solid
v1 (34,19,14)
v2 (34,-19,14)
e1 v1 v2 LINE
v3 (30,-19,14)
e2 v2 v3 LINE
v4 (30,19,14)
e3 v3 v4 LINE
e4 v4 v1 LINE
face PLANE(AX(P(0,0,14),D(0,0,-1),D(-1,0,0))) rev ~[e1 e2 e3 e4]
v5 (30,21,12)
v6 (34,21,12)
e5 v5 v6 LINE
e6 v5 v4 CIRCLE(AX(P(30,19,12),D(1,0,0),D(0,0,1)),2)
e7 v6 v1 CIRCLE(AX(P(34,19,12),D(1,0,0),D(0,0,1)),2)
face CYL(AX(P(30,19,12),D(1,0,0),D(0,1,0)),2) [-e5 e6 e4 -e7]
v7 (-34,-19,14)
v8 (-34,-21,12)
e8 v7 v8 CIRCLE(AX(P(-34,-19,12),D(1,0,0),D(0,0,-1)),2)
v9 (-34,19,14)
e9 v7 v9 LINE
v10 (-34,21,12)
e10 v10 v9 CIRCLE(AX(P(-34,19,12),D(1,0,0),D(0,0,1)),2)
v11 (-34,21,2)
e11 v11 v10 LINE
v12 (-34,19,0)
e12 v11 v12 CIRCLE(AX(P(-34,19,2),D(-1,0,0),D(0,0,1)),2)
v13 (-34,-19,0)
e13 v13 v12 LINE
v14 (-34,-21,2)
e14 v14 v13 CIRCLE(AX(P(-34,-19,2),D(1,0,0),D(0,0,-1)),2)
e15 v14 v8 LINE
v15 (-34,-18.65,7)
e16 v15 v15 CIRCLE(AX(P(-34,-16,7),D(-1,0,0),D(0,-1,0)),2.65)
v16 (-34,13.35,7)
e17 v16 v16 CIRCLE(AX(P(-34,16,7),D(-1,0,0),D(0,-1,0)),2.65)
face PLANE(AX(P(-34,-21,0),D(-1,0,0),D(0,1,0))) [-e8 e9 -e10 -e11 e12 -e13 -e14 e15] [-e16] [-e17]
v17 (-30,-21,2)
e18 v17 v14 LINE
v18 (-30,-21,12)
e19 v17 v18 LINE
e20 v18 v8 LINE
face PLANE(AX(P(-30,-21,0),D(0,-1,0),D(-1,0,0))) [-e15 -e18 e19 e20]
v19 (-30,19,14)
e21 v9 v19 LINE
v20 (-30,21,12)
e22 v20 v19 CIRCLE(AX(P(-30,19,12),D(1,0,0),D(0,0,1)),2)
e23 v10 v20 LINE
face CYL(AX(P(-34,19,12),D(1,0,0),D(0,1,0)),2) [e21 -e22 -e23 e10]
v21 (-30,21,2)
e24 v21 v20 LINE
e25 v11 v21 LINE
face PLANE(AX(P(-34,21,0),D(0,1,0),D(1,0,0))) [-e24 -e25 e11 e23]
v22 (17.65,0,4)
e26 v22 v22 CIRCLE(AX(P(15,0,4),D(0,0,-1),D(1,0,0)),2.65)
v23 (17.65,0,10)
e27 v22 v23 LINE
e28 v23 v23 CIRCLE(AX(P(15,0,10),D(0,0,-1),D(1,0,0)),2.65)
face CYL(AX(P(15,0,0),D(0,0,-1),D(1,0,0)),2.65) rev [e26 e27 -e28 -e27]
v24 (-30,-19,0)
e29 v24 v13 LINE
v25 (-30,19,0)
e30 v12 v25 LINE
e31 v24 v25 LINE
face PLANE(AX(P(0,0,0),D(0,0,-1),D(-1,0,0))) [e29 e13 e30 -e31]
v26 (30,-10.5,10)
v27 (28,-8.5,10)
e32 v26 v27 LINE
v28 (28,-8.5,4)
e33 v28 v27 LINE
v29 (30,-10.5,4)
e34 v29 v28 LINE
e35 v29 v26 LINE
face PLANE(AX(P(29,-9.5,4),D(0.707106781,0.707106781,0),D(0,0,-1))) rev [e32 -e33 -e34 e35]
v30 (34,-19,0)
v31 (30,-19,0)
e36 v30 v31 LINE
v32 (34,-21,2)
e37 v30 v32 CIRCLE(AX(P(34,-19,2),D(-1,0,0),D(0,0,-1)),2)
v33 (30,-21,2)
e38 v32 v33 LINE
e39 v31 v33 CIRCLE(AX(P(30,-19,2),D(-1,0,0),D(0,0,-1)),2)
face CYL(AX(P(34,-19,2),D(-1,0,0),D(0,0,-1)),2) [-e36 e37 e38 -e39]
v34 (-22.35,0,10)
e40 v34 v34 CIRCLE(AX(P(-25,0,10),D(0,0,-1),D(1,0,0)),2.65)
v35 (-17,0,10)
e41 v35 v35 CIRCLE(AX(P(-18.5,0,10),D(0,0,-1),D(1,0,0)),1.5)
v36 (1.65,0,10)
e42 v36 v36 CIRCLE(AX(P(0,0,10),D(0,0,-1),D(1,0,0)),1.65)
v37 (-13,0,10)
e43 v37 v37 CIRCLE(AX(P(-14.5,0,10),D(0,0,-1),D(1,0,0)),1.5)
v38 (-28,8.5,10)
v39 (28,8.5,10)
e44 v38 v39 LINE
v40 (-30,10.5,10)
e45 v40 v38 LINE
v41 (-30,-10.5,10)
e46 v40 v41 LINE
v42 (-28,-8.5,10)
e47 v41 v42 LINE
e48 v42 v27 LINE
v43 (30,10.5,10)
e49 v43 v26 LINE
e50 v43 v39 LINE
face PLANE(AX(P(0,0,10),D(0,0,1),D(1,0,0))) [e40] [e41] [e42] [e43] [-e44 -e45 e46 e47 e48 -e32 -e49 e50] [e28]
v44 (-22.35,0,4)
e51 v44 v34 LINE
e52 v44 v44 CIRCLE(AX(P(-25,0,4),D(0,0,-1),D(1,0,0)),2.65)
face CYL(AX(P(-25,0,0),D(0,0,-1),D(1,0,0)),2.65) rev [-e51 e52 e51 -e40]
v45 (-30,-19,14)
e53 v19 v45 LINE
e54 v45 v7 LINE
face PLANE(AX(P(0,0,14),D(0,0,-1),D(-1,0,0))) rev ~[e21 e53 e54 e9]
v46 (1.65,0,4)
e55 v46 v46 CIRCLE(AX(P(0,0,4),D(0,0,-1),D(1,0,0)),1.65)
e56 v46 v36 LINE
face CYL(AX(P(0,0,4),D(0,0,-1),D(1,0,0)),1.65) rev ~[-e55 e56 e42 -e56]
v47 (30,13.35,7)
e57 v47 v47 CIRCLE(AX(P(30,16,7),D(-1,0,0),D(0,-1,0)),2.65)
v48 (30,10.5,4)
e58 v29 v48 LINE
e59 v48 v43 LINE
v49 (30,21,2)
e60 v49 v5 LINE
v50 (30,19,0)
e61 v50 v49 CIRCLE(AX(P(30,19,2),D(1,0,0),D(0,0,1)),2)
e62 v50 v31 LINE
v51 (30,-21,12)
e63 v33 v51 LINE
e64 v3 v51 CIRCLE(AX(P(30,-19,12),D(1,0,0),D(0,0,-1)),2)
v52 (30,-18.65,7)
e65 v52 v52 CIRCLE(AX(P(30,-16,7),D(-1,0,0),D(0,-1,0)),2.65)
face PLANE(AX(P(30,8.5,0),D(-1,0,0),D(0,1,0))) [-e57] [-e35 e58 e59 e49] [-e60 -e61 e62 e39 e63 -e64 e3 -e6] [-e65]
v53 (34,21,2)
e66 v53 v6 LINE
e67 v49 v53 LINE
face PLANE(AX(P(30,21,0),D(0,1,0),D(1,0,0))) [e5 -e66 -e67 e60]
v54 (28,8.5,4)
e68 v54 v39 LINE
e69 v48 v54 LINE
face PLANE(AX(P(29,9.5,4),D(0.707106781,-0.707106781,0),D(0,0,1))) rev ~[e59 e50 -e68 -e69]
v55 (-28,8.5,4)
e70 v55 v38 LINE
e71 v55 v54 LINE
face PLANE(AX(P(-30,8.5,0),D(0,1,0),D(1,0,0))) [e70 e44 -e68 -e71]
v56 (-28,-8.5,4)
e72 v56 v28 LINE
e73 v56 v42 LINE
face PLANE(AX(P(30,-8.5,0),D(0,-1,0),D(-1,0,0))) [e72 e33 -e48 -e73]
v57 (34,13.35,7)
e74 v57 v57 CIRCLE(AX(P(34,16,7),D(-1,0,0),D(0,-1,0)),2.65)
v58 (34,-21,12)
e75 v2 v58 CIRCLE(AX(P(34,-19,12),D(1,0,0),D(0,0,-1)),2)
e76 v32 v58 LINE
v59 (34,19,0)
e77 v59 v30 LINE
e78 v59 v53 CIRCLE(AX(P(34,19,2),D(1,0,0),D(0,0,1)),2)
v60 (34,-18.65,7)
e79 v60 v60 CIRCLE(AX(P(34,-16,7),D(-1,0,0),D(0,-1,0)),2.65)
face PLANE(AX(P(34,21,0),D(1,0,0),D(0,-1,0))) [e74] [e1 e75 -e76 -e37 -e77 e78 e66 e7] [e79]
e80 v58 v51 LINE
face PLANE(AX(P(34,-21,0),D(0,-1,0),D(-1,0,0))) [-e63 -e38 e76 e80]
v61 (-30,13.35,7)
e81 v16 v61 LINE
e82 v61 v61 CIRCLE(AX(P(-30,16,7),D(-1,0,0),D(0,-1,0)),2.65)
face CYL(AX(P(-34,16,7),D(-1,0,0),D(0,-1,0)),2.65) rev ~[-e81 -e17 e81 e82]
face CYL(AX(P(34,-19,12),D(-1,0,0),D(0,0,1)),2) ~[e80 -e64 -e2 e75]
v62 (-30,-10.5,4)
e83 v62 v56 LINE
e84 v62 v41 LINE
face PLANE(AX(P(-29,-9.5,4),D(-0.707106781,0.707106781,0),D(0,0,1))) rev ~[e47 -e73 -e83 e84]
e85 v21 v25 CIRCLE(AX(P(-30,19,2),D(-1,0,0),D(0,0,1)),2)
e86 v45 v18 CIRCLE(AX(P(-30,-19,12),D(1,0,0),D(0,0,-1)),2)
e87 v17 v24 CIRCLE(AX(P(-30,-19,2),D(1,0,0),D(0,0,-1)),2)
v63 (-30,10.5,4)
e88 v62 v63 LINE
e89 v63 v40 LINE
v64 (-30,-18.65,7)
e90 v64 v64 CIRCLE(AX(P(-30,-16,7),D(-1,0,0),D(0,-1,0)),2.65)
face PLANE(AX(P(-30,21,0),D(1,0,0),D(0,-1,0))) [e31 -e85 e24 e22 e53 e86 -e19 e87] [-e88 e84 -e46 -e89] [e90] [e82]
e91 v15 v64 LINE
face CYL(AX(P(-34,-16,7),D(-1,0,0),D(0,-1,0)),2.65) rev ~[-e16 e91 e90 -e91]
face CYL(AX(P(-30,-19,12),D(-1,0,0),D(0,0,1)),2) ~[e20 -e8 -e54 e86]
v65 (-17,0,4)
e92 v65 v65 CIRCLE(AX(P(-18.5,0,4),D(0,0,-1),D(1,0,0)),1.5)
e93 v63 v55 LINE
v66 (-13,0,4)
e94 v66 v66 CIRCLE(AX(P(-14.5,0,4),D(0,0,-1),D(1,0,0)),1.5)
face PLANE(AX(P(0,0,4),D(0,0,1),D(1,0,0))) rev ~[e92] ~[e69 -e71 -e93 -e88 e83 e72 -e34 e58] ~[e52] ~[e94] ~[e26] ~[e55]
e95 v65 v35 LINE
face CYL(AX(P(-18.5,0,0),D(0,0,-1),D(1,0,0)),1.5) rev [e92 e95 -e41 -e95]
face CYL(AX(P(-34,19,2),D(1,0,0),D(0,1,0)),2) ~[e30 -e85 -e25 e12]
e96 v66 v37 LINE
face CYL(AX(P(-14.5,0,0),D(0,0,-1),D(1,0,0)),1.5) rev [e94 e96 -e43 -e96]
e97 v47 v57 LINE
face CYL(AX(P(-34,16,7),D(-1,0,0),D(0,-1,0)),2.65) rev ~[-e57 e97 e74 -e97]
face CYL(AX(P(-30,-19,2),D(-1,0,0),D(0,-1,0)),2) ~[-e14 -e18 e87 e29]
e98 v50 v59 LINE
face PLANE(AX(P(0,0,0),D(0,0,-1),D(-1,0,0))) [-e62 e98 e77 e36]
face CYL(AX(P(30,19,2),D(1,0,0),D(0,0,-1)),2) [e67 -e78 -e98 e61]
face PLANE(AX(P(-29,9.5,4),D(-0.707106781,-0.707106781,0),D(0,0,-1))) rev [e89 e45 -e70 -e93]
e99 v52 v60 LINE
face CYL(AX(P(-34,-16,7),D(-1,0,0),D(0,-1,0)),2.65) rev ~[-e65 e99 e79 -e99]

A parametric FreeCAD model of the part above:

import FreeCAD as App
import Part
import Sketcher
Q = App.Units.Quantity


def edges_at(feature, points):
    """Names of the edges that pass closest to the given points."""
    edges = feature.Shape.Edges
    near = lambda p: min(range(len(edges)), key=lambda i: edges[i].distToShape(Part.Vertex(*p))[0])
    return sorted({f"Edge{near(p) + 1}" for p in points})

doc = App.newDocument("Part")
params = doc.addObject("Spreadsheet::Sheet", "Params")
for row, (alias, value) in enumerate([
    ("sketch1_diameter", "3 mm"),
    ("sketch1_diameter2", "5.3 mm"),
    ("sketch1_width", "4 mm"),
    ("sketch1_width2", "60 mm"),
    ("sketch1_height", "42 mm"),
    ("pad1_length", "14 mm"),
    ("sketch2_diameter", "5.3 mm"),
    ("sketch3_width", "60 mm"),
    ("sketch3_height", "17 mm"),
    ("pocket2_length", "4 mm"),
    ("sketch4_width", "60 mm"),
    ("sketch4_height", "17 mm"),
    ("pocket3_length", "4 mm"),
    ("chamfer_size", "2 mm"),
    ("fillet_radius", "2 mm"),
    ("fillet2_radius", "2 mm"),
    ("sketch5_diameter", "3.3 mm"),
], start=1):
    params.set(f"A{row}", alias)
    params.set(f"B{row}", "=" + value)
    params.setAlias(f"B{row}", alias)

body = doc.addObject("PartDesign::Body", "Body")

# Sketch on XY plane
sketch1 = body.newObject("Sketcher::SketchObject", "Sketch")
sketch1.AttachmentSupport = (doc.getObject("XY_Plane"), [""])
sketch1.MapMode = "FlatFace"
sketch1.addGeometry(Part.LineSegment(App.Vector(34, 21, 0), App.Vector(30, 21, 0)), False)
sketch1.addGeometry(Part.LineSegment(App.Vector(30, 21, 0), App.Vector(30, 8.5, 0)), False)
sketch1.addGeometry(Part.LineSegment(App.Vector(30, 8.5, 0), App.Vector(-30, 8.5, 0)), False)
sketch1.addGeometry(Part.LineSegment(App.Vector(-30, 8.5, 0), App.Vector(-30, 21, 0)), False)
sketch1.addGeometry(Part.LineSegment(App.Vector(-30, 21, 0), App.Vector(-34, 21, 0)), False)
sketch1.addGeometry(Part.LineSegment(App.Vector(-34, 21, 0), App.Vector(-34, -21, 0)), False)
sketch1.addGeometry(Part.LineSegment(App.Vector(-34, -21, 0), App.Vector(-30, -21, 0)), False)
sketch1.addGeometry(Part.LineSegment(App.Vector(-30, -21, 0), App.Vector(-30, -8.5, 0)), False)
sketch1.addGeometry(Part.LineSegment(App.Vector(-30, -8.5, 0), App.Vector(30, -8.5, 0)), False)
sketch1.addGeometry(Part.LineSegment(App.Vector(30, -8.5, 0), App.Vector(30, -21, 0)), False)
sketch1.addGeometry(Part.LineSegment(App.Vector(30, -21, 0), App.Vector(34, -21, 0)), False)
sketch1.addGeometry(Part.LineSegment(App.Vector(34, -21, 0), App.Vector(34, 21, 0)), False)
sketch1.addGeometry(Part.Circle(App.Vector(15, 0, 0), App.Vector(0, 0, 1), 2.6), False)
sketch1.addGeometry(Part.Circle(App.Vector(-14.5, 0, 0), App.Vector(0, 0, 1), 1.5), False)
sketch1.addGeometry(Part.Circle(App.Vector(-18.5, 0, 0), App.Vector(0, 0, 1), 1.5), False)
sketch1.addGeometry(Part.Circle(App.Vector(-25, 0, 0), App.Vector(0, 0, 1), 2.6), False)
sketch1.addConstraint(Sketcher.Constraint("Coincident", 0, 2, 1, 1))
sketch1.addConstraint(Sketcher.Constraint("Coincident", 1, 2, 2, 1))
sketch1.addConstraint(Sketcher.Constraint("Coincident", 2, 2, 3, 1))
sketch1.addConstraint(Sketcher.Constraint("Coincident", 3, 2, 4, 1))
sketch1.addConstraint(Sketcher.Constraint("Coincident", 4, 2, 5, 1))
sketch1.addConstraint(Sketcher.Constraint("Coincident", 5, 2, 6, 1))
sketch1.addConstraint(Sketcher.Constraint("Coincident", 6, 2, 7, 1))
sketch1.addConstraint(Sketcher.Constraint("Coincident", 7, 2, 8, 1))
sketch1.addConstraint(Sketcher.Constraint("Coincident", 8, 2, 9, 1))
sketch1.addConstraint(Sketcher.Constraint("Coincident", 9, 2, 10, 1))
sketch1.addConstraint(Sketcher.Constraint("Coincident", 10, 2, 11, 1))
sketch1.addConstraint(Sketcher.Constraint("Coincident", 11, 2, 0, 1))
sketch1.addConstraint(Sketcher.Constraint("Horizontal", 0))
sketch1.addConstraint(Sketcher.Constraint("Vertical", 1))
sketch1.addConstraint(Sketcher.Constraint("Horizontal", 2))
sketch1.addConstraint(Sketcher.Constraint("Vertical", 3))
sketch1.addConstraint(Sketcher.Constraint("Horizontal", 4))
sketch1.addConstraint(Sketcher.Constraint("Vertical", 5))
sketch1.addConstraint(Sketcher.Constraint("Horizontal", 6))
sketch1.addConstraint(Sketcher.Constraint("Vertical", 7))
sketch1.addConstraint(Sketcher.Constraint("Horizontal", 8))
sketch1.addConstraint(Sketcher.Constraint("Vertical", 9))
sketch1.addConstraint(Sketcher.Constraint("Horizontal", 10))
sketch1.addConstraint(Sketcher.Constraint("Vertical", 11))
sketch1.addConstraint(Sketcher.Constraint("Equal", 13, 14))
sketch1.addConstraint(Sketcher.Constraint("Equal", 12, 15))
sketch1.addConstraint(Sketcher.Constraint("Symmetric", 0, 2, 6, 2, -1, 1))
sketch1.addConstraint(Sketcher.Constraint("Symmetric", 2, 2, 8, 2, -1, 1))
sketch1.addConstraint(Sketcher.Constraint("Symmetric", 4, 2, 10, 2, -1, 1))
sketch1.addConstraint(Sketcher.Constraint("Symmetric", 0, 2, 3, 2, -2))
sketch1.addConstraint(Sketcher.Constraint("PointOnObject", 12, 3, -1))
sketch1.addConstraint(Sketcher.Constraint("PointOnObject", 13, 3, -1))
sketch1.addConstraint(Sketcher.Constraint("PointOnObject", 14, 3, -1))
sketch1.addConstraint(Sketcher.Constraint("PointOnObject", 15, 3, -1))
sketch1.addConstraint(Sketcher.Constraint("Diameter", 13, Q("3 mm")))
sketch1.addConstraint(Sketcher.Constraint("Diameter", 12, Q("5.3 mm")))
sketch1.addConstraint(Sketcher.Constraint("DistanceX", 0, 2, 0, 1, Q("4 mm")))
sketch1.addConstraint(Sketcher.Constraint("DistanceX", 2, 2, 2, 1, Q("60 mm")))
sketch1.addConstraint(Sketcher.Constraint("DistanceY", 5, 2, 5, 1, Q("42 mm")))
sketch1.addConstraint(Sketcher.Constraint("DistanceY", 1, 2, 1, 1, Q("12.5 mm")))
sketch1.addConstraint(Sketcher.Constraint("DistanceX", -1, 1, 12, 3, Q("15 mm")))
sketch1.addConstraint(Sketcher.Constraint("DistanceX", 15, 3, -1, 1, Q("25 mm")))
sketch1.addConstraint(Sketcher.Constraint("DistanceX", 14, 3, 13, 3, Q("4 mm")))
sketch1.addConstraint(Sketcher.Constraint("DistanceX", 13, 3, -1, 1, Q("14.5 mm")))
sketch1.setExpression("Constraints[34]", "Params.sketch1_diameter")
sketch1.setExpression("Constraints[35]", "Params.sketch1_diameter2")
sketch1.setExpression("Constraints[36]", "Params.sketch1_width")
sketch1.setExpression("Constraints[37]", "Params.sketch1_width2")
sketch1.setExpression("Constraints[38]", "Params.sketch1_height")
pad1 = body.newObject("PartDesign::Pad", "Pad")
pad1.Profile = sketch1
pad1.setExpression("Length", "Params.pad1_length")

# Sketch on YZ plane
sketch2 = body.newObject("Sketcher::SketchObject", "Sketch001")
sketch2.AttachmentSupport = (doc.getObject("YZ_Plane"), [""])
sketch2.MapMode = "FlatFace"
sketch2.AttachmentOffset = App.Placement(App.Vector(0, 0, -34), App.Rotation())
sketch2.addGeometry(Part.Circle(App.Vector(16, 7, 0), App.Vector(0, 0, 1), 2.6), False)
sketch2.addGeometry(Part.Circle(App.Vector(-16, 7, 0), App.Vector(0, 0, 1), 2.6), False)
sketch2.addConstraint(Sketcher.Constraint("Equal", 0, 1))
sketch2.addConstraint(Sketcher.Constraint("Symmetric", 0, 3, 1, 3, -2))
sketch2.addConstraint(Sketcher.Constraint("Diameter", 0, Q("5.3 mm")))
sketch2.addConstraint(Sketcher.Constraint("DistanceX", -1, 1, 0, 3, Q("16 mm")))
sketch2.addConstraint(Sketcher.Constraint("DistanceY", -1, 1, 0, 3, Q("7 mm")))
sketch2.setExpression("Constraints[2]", "Params.sketch2_diameter")
pocket1 = body.newObject("PartDesign::Pocket", "Pocket")
pocket1.Profile = sketch2
pocket1.Type = "ThroughAll"
pocket1.Reversed = True

# Sketch on XY plane
sketch3 = body.newObject("Sketcher::SketchObject", "Sketch002")
sketch3.AttachmentSupport = (doc.getObject("XY_Plane"), [""])
sketch3.MapMode = "FlatFace"
sketch3.AttachmentOffset = App.Placement(App.Vector(0, 0, 14), App.Rotation())
sketch3.addGeometry(Part.LineSegment(App.Vector(-30, 8, 0), App.Vector(-30, -8, 0)), False)
sketch3.addGeometry(Part.LineSegment(App.Vector(-30, -8, 0), App.Vector(30, -8, 0)), False)
sketch3.addGeometry(Part.LineSegment(App.Vector(30, -8, 0), App.Vector(30, 8, 0)), False)
sketch3.addGeometry(Part.LineSegment(App.Vector(30, 8, 0), App.Vector(-30, 8, 0)), False)
sketch3.addConstraint(Sketcher.Constraint("Coincident", 0, 2, 1, 1))
sketch3.addConstraint(Sketcher.Constraint("Coincident", 1, 2, 2, 1))
sketch3.addConstraint(Sketcher.Constraint("Coincident", 2, 2, 3, 1))
sketch3.addConstraint(Sketcher.Constraint("Coincident", 3, 2, 0, 1))
sketch3.addConstraint(Sketcher.Constraint("Vertical", 0))
sketch3.addConstraint(Sketcher.Constraint("Horizontal", 1))
sketch3.addConstraint(Sketcher.Constraint("Vertical", 2))
sketch3.addConstraint(Sketcher.Constraint("Horizontal", 3))
sketch3.addConstraint(Sketcher.Constraint("Symmetric", 0, 2, 2, 2, -1, 1))
sketch3.addConstraint(Sketcher.Constraint("DistanceX", 1, 1, 1, 2, Q("60 mm")))
sketch3.addConstraint(Sketcher.Constraint("DistanceY", 0, 2, 0, 1, Q("17 mm")))
sketch3.setExpression("Constraints[9]", "Params.sketch3_width")
sketch3.setExpression("Constraints[10]", "Params.sketch3_height")
pocket2 = body.newObject("PartDesign::Pocket", "Pocket001")
pocket2.Profile = sketch3
pocket2.setExpression("Length", "Params.pocket2_length")

# Sketch on XY plane
sketch4 = body.newObject("Sketcher::SketchObject", "Sketch003")
sketch4.AttachmentSupport = (doc.getObject("XY_Plane"), [""])
sketch4.MapMode = "FlatFace"
sketch4.addGeometry(Part.LineSegment(App.Vector(-30, 8, 0), App.Vector(-30, -8, 0)), False)
sketch4.addGeometry(Part.LineSegment(App.Vector(-30, -8, 0), App.Vector(30, -8, 0)), False)
sketch4.addGeometry(Part.LineSegment(App.Vector(30, -8, 0), App.Vector(30, 8, 0)), False)
sketch4.addGeometry(Part.LineSegment(App.Vector(30, 8, 0), App.Vector(-30, 8, 0)), False)
sketch4.addConstraint(Sketcher.Constraint("Coincident", 0, 2, 1, 1))
sketch4.addConstraint(Sketcher.Constraint("Coincident", 1, 2, 2, 1))
sketch4.addConstraint(Sketcher.Constraint("Coincident", 2, 2, 3, 1))
sketch4.addConstraint(Sketcher.Constraint("Coincident", 3, 2, 0, 1))
sketch4.addConstraint(Sketcher.Constraint("Vertical", 0))
sketch4.addConstraint(Sketcher.Constraint("Horizontal", 1))
sketch4.addConstraint(Sketcher.Constraint("Vertical", 2))
sketch4.addConstraint(Sketcher.Constraint("Horizontal", 3))
sketch4.addConstraint(Sketcher.Constraint("Symmetric", 0, 2, 2, 2, -1, 1))
sketch4.addConstraint(Sketcher.Constraint("DistanceX", 1, 1, 1, 2, Q("60 mm")))
sketch4.addConstraint(Sketcher.Constraint("DistanceY", 0, 2, 0, 1, Q("17 mm")))
sketch4.setExpression("Constraints[9]", "Params.sketch4_width")
sketch4.setExpression("Constraints[10]", "Params.sketch4_height")
pocket3 = body.newObject("PartDesign::Pocket", "Pocket002")
pocket3.Profile = sketch4
pocket3.setExpression("Length", "Params.pocket3_length")
pocket3.Reversed = True
doc.recompute()

chamfer = body.newObject("PartDesign::Chamfer", "Chamfer")
chamfer.Base = (pocket3, edges_at(pocket3, [
    (-30, 8.5, 7),
    (30, 8.5, 7),
    (30, -8.5, 7),
    (-30, -8.5, 7),
]))
chamfer.setExpression("Size", "Params.chamfer_size")
doc.recompute()

fillet = body.newObject("PartDesign::Fillet", "Fillet")
fillet.Base = (chamfer, edges_at(chamfer, [
    (32, -21, 14),
    (32, -21, 0),
    (32, 21, 14),
    (32, 21, 0),
]))
fillet.setExpression("Radius", "Params.fillet_radius")
doc.recompute()

fillet2 = body.newObject("PartDesign::Fillet", "Fillet001")
fillet2.Base = (fillet, edges_at(fillet, [
    (-32, 21, 14),
    (-32, 21, 0),
    (-32, -21, 14),
    (-32, -21, 0),
]))
fillet2.setExpression("Radius", "Params.fillet2_radius")

# Sketch on XY plane
sketch5 = body.newObject("Sketcher::SketchObject", "Sketch004")
sketch5.AttachmentSupport = (doc.getObject("XY_Plane"), [""])
sketch5.MapMode = "FlatFace"
sketch5.AttachmentOffset = App.Placement(App.Vector(0, 0, 4), App.Rotation())
sketch5.addGeometry(Part.Circle(App.Vector(0, 0, 0), App.Vector(0, 0, 1), 1.6), False)
sketch5.addConstraint(Sketcher.Constraint("Coincident", 0, 3, -1, 1))
sketch5.addConstraint(Sketcher.Constraint("Diameter", 0, Q("3.3 mm")))
sketch5.setExpression("Constraints[1]", "Params.sketch5_diameter")
pocket4 = body.newObject("PartDesign::Pocket", "Pocket003")
pocket4.Profile = sketch5
pocket4.Type = "ThroughAll"
pocket4.Reversed = True

doc.recompute()
